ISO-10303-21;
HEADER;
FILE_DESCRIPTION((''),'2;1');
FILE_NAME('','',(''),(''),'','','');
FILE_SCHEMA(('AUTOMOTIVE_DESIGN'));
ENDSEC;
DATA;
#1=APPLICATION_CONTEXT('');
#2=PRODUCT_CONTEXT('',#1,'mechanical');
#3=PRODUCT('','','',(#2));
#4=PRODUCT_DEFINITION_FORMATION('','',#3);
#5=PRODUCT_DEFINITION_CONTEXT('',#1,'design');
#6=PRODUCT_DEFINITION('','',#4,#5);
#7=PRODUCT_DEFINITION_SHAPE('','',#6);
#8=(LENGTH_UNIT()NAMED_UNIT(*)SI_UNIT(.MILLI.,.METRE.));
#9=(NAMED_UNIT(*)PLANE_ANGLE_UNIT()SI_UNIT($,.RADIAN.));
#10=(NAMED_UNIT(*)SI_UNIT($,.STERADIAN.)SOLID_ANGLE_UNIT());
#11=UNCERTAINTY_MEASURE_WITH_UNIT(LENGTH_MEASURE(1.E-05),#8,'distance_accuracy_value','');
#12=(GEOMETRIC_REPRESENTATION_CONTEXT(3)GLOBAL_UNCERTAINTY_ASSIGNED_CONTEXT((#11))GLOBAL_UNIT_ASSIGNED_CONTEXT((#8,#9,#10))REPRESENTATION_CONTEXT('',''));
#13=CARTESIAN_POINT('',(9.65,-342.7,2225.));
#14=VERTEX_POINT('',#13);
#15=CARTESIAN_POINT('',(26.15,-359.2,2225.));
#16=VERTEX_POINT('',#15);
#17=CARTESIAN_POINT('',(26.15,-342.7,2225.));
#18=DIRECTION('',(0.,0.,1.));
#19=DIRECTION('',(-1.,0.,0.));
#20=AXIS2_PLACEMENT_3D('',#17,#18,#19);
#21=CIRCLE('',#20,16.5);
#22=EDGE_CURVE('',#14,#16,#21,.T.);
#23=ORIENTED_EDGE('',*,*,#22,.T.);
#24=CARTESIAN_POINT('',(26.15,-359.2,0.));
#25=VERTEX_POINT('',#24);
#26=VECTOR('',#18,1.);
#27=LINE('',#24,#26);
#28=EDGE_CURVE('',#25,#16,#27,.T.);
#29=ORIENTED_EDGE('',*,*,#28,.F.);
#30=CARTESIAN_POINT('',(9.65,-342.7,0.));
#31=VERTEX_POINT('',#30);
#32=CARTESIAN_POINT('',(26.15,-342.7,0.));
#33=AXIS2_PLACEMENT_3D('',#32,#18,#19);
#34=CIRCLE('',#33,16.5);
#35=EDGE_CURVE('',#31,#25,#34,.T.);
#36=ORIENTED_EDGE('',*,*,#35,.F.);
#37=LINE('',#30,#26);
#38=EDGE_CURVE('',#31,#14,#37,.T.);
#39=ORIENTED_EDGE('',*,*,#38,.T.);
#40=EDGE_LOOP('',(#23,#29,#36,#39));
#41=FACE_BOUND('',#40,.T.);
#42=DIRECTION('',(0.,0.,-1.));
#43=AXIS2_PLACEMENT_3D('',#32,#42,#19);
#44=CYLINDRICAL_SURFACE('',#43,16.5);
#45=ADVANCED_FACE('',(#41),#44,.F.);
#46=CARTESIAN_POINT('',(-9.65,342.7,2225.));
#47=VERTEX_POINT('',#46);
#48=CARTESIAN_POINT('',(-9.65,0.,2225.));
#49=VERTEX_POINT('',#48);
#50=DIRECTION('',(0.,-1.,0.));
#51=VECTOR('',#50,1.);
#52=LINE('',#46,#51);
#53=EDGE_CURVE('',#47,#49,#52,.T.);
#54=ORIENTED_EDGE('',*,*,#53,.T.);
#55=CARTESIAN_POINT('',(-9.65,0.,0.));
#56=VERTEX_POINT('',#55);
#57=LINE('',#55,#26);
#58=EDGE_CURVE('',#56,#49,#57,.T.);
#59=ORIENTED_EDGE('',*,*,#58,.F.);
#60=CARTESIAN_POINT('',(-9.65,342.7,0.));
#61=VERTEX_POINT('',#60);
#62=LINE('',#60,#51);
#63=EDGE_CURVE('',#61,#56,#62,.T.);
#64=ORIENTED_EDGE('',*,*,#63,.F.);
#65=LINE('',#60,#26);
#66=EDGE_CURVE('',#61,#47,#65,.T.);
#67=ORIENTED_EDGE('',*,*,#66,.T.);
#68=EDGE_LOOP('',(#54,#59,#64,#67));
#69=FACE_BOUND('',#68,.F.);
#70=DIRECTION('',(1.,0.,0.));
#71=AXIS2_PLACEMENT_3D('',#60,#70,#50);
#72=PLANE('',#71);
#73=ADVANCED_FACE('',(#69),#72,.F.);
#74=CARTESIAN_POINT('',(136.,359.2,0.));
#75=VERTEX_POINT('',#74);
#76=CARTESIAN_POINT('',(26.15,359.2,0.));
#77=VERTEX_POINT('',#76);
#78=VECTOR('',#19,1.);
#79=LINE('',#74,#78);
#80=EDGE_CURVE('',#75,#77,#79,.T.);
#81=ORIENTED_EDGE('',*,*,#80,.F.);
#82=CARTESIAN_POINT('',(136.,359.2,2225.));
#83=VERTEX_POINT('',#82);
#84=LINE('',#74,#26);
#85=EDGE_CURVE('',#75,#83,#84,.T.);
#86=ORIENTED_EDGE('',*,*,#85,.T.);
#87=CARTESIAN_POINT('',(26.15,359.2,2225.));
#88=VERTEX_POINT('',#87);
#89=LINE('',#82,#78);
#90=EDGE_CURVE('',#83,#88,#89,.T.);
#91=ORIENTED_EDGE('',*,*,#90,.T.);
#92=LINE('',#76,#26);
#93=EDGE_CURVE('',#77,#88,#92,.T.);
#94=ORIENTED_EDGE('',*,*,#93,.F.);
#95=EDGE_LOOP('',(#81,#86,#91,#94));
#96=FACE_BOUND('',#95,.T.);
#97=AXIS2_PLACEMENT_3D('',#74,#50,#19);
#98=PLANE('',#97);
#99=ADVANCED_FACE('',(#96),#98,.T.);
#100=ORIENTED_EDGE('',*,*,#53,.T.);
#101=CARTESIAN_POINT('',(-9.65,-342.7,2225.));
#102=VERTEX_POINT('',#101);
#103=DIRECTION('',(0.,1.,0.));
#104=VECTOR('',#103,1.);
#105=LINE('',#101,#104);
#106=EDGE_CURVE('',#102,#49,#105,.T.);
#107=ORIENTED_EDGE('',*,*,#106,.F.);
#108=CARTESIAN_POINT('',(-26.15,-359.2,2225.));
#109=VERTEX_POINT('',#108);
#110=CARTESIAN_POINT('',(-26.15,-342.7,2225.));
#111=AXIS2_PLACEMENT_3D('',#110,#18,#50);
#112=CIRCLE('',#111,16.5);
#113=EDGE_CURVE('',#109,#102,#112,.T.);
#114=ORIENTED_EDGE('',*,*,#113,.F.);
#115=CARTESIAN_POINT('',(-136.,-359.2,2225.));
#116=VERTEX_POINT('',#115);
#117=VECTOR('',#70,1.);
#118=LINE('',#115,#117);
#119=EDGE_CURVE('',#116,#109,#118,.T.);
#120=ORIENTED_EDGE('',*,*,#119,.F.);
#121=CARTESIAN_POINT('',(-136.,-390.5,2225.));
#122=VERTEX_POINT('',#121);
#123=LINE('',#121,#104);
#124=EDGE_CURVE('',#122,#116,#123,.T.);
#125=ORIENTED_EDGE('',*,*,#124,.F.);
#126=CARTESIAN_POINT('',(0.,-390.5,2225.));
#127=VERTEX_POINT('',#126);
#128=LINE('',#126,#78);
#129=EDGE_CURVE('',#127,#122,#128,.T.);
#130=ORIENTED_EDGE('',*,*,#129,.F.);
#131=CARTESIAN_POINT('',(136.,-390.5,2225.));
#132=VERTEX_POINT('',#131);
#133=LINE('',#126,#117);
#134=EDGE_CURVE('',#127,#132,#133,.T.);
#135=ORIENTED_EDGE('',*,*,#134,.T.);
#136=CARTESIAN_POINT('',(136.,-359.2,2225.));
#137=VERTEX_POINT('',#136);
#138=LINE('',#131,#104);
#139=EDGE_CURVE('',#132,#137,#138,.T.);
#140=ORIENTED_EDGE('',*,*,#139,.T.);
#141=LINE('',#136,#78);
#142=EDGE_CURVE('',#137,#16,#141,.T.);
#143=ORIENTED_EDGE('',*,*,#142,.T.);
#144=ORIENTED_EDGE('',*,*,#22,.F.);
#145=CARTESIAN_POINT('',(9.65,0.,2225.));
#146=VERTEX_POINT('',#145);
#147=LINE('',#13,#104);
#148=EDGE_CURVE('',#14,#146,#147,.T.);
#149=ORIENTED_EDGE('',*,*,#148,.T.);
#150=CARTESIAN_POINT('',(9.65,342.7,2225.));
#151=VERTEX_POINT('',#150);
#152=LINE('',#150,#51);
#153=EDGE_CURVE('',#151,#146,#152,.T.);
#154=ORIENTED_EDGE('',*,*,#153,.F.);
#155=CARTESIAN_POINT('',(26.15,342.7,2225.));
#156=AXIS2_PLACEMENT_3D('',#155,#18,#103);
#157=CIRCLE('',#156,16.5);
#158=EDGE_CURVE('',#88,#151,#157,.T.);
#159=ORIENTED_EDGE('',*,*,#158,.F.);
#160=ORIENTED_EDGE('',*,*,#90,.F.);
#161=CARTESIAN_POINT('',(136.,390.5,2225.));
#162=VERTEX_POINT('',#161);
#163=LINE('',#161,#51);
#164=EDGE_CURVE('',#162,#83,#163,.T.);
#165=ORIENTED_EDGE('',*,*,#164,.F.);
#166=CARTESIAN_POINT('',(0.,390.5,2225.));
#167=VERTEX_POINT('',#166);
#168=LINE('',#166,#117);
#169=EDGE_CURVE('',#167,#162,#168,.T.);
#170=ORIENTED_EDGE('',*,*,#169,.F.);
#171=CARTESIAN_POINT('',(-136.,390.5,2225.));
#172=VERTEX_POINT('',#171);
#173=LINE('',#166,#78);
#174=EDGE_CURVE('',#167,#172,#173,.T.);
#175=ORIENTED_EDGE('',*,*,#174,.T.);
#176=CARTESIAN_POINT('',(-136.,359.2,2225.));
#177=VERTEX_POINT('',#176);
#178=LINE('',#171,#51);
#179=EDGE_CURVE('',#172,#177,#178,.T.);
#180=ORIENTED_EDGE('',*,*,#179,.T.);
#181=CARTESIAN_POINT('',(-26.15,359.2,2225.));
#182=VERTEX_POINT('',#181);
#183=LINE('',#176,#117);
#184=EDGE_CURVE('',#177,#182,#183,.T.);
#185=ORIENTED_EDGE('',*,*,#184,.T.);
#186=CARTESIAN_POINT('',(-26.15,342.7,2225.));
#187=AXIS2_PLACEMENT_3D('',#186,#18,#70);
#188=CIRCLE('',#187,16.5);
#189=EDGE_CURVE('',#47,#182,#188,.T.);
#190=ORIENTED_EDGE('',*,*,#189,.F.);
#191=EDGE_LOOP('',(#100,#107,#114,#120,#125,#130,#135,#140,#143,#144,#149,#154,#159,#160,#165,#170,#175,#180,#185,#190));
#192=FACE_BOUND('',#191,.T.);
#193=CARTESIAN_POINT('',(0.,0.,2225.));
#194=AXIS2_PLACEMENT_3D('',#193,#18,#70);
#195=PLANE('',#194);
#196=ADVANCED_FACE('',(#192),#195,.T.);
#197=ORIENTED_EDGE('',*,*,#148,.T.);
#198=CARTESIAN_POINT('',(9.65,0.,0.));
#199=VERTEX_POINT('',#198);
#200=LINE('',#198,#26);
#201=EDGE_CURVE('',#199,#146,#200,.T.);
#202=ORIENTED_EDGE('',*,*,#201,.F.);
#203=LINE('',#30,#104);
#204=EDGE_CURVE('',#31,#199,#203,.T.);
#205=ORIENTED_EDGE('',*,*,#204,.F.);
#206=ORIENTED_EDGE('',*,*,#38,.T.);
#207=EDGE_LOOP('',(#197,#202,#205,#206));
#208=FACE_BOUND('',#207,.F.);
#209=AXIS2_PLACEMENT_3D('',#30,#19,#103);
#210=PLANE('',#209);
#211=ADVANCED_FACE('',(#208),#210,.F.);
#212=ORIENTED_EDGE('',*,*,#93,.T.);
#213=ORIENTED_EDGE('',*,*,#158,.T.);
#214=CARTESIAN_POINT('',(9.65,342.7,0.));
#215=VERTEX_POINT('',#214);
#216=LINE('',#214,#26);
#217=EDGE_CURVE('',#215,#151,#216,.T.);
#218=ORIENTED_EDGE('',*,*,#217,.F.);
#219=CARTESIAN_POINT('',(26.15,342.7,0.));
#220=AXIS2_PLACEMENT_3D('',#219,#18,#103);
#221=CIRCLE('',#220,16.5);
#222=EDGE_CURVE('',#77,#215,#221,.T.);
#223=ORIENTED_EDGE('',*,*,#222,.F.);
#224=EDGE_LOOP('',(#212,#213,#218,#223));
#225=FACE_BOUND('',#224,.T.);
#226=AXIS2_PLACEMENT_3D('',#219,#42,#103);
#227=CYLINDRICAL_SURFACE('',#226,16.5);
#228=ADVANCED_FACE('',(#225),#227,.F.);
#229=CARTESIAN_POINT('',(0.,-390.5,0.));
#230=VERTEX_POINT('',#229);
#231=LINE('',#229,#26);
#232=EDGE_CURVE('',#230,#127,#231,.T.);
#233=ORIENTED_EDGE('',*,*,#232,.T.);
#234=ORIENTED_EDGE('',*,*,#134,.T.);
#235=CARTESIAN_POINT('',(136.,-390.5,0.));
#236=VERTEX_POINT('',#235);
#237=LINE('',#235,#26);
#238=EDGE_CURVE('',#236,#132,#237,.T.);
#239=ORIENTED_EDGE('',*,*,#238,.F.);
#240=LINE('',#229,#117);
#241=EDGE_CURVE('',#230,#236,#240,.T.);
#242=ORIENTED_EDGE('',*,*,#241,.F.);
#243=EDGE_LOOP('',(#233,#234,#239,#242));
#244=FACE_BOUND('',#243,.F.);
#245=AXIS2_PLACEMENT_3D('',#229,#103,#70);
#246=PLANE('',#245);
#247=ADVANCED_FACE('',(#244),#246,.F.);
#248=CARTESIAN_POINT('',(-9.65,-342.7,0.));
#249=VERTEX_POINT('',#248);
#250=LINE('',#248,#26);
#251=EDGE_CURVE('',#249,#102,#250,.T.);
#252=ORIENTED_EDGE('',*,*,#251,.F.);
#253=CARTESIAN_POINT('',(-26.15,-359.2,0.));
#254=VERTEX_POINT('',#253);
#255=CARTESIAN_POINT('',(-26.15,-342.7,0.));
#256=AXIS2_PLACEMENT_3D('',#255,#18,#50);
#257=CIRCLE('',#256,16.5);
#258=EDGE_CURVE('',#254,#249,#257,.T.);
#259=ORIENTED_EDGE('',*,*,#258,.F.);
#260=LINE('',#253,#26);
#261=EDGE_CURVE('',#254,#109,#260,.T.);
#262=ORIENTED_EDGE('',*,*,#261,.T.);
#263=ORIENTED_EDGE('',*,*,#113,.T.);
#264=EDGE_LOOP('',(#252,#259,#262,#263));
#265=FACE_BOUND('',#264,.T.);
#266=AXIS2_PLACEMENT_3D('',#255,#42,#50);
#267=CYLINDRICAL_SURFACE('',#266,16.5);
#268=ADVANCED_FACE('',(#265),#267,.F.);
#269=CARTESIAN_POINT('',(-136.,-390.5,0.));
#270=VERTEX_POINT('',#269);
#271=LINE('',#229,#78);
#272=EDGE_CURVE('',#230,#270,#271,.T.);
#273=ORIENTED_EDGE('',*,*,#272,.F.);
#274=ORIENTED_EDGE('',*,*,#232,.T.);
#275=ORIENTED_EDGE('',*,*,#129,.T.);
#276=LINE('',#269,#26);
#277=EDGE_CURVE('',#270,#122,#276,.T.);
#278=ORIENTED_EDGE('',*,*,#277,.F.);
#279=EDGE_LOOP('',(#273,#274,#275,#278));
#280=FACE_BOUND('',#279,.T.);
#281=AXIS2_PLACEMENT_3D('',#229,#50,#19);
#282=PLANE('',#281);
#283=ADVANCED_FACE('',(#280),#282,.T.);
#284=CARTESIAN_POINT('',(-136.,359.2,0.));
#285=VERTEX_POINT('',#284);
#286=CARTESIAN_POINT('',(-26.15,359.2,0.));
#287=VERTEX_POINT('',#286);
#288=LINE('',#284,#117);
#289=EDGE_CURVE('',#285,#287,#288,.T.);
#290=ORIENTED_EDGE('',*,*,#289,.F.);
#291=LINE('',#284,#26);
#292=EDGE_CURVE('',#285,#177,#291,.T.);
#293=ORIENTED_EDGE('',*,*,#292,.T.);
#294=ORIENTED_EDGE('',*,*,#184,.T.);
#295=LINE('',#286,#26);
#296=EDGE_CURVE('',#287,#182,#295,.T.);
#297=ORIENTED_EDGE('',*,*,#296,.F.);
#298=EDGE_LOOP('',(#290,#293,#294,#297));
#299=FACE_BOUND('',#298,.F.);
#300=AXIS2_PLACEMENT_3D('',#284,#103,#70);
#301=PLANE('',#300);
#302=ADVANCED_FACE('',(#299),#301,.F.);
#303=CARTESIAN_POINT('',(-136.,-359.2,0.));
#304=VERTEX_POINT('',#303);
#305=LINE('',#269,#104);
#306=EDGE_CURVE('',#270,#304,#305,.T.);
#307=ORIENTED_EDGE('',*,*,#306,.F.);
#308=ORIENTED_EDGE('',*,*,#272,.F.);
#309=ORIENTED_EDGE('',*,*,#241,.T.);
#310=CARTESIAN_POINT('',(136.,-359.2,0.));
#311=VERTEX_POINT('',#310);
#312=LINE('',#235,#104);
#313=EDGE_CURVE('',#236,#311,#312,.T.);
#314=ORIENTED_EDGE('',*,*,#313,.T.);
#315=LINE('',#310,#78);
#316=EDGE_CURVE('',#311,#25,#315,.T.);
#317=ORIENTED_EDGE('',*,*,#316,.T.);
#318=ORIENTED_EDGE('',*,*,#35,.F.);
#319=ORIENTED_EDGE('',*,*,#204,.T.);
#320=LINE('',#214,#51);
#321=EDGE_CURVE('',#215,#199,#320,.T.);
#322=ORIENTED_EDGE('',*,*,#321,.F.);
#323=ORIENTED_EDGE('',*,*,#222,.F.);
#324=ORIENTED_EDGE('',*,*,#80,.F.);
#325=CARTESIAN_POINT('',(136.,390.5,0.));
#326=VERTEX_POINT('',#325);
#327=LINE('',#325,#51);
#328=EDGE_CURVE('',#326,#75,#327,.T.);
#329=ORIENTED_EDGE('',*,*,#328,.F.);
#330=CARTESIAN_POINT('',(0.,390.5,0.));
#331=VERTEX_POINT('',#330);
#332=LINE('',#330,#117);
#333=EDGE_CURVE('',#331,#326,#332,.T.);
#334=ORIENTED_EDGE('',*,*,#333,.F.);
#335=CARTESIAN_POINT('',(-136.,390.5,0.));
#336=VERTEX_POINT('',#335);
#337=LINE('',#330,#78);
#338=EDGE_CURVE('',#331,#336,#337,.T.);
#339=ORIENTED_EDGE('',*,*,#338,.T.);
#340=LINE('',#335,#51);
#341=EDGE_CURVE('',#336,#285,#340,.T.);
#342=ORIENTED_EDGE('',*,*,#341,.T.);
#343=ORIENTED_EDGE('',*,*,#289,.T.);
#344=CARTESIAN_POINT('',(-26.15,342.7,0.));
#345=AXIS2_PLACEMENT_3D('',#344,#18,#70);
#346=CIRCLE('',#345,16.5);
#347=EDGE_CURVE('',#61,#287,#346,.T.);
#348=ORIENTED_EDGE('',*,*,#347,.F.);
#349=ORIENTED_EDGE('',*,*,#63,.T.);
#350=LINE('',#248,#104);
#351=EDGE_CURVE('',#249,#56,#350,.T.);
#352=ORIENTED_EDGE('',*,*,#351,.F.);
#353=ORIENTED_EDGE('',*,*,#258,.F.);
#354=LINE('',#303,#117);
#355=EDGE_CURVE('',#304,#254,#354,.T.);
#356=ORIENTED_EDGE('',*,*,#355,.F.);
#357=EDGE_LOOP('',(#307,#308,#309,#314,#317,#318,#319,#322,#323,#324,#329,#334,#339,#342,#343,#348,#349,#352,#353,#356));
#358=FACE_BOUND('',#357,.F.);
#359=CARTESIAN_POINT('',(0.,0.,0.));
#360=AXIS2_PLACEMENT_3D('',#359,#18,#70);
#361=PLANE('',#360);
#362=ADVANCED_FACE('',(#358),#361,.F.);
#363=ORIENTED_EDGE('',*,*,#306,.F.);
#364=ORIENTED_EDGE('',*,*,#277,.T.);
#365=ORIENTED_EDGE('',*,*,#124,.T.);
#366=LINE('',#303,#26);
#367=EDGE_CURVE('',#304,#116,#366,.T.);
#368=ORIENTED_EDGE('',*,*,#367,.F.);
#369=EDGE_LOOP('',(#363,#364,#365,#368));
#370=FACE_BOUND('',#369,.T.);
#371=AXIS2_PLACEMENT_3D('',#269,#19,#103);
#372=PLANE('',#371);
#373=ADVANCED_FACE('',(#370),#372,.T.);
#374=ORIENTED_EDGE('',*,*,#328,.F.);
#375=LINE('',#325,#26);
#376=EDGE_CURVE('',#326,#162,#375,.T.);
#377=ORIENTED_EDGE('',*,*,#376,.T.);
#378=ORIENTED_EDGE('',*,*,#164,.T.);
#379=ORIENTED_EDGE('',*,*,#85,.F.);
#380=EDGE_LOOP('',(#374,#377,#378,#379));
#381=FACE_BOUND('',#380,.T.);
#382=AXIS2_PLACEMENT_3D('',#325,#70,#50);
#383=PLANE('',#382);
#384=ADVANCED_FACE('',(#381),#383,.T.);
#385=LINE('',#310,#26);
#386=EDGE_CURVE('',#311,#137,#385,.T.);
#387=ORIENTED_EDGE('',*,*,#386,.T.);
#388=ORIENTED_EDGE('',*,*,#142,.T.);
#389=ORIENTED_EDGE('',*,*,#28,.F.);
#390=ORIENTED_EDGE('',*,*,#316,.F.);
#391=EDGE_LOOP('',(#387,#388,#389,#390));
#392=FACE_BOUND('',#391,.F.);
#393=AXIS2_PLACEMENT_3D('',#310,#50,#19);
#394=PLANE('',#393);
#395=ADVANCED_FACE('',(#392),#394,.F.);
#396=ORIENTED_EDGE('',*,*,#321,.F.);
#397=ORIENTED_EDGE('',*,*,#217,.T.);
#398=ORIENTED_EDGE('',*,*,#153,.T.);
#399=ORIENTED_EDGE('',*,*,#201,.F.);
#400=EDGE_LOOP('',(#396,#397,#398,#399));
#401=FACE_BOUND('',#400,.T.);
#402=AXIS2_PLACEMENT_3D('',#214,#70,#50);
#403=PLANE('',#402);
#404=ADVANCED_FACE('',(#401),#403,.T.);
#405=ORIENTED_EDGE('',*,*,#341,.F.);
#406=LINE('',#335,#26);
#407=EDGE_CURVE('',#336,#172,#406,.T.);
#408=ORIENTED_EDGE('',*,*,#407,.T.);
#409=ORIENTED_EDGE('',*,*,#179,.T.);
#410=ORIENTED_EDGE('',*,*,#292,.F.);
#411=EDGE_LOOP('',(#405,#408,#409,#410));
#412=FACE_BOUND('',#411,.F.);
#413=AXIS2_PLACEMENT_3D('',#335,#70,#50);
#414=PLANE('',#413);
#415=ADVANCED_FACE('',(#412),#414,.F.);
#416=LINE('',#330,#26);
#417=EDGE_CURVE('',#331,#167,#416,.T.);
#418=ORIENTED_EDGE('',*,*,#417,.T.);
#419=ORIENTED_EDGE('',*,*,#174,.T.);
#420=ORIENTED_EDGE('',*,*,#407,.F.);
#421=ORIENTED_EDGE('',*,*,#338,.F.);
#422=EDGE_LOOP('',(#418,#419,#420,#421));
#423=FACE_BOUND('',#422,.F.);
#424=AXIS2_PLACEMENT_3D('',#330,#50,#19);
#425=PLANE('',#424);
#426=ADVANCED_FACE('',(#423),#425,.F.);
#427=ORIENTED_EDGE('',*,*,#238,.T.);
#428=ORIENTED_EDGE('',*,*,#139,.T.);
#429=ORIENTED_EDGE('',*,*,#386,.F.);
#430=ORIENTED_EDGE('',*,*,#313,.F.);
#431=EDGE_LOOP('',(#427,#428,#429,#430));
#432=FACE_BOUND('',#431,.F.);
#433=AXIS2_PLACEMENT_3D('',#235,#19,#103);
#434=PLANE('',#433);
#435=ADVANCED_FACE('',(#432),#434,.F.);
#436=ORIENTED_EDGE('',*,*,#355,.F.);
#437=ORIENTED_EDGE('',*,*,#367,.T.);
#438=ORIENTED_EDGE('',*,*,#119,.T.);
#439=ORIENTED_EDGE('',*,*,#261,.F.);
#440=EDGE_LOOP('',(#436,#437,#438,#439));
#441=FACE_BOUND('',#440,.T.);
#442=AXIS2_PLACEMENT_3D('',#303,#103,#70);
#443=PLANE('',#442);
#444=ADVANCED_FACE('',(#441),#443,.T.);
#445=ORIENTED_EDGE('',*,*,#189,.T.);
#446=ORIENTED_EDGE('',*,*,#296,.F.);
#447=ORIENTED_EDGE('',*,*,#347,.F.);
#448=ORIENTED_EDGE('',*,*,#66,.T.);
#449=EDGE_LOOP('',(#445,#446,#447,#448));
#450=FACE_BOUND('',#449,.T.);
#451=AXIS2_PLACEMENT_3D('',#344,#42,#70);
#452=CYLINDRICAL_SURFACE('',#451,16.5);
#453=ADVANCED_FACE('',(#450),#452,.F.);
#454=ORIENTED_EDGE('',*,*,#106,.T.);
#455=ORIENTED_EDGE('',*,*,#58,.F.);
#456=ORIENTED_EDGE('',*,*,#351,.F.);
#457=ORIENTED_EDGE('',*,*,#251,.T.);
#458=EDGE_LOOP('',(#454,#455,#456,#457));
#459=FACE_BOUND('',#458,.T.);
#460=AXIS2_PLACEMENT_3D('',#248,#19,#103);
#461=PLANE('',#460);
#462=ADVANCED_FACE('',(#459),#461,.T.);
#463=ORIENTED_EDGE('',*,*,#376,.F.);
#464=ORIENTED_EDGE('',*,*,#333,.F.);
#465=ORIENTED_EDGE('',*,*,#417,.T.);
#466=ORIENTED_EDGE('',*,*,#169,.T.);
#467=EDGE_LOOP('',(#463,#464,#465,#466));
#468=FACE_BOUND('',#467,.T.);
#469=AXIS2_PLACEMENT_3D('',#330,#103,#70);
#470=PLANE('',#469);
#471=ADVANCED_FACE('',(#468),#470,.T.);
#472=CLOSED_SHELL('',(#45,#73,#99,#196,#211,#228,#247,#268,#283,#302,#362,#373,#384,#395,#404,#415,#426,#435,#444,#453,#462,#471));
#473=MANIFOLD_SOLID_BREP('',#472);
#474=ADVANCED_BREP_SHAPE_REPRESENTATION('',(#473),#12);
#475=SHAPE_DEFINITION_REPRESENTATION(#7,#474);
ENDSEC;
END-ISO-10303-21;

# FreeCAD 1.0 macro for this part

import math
import FreeCAD as App
import Part
import Sketcher
from FreeCAD import Vector

doc = App.newDocument("Part")
params = doc.addObject("Spreadsheet::Sheet", "Params")
for row, (alias, value) in enumerate([
    ("sketch1_radius", "16.5 mm"),
    ("sketch1_height", "31.3 mm"),
    ("pad1_length", "2225 mm"),
], start=1):
    params.set(f"A{row}", alias)
    params.set(f"B{row}", "=" + value)
    params.setAlias(f"B{row}", alias)

body = doc.addObject("PartDesign::Body", "Body")

sketch1 = body.newObject("Sketcher::SketchObject", "Sketch")
sketch1.AttachmentSupport = (doc.getObject("XY_Plane"), [""])
sketch1.MapMode = "FlatFace"
sketch1.addGeometry([
    Part.LineSegment(Vector(-136, -359.2, 0), Vector(-136, -390.5, 0)),
    Part.LineSegment(Vector(-136, -390.5, 0), Vector(136, -390.5, 0)),
    Part.LineSegment(Vector(136, -390.5, 0), Vector(136, -359.2, 0)),
    Part.LineSegment(Vector(136, -359.2, 0), Vector(26.15, -359.2, 0)),
    Part.ArcOfCircle(Part.Circle(Vector(26.15, -342.7, 0), Vector(0, 0, 1), 16.5), math.radians(180), math.radians(270)),
    Part.LineSegment(Vector(9.65, -342.7, 0), Vector(9.65, 342.7, 0)),
    Part.ArcOfCircle(Part.Circle(Vector(26.15, 342.7, 0), Vector(0, 0, 1), 16.5), math.radians(90), math.radians(180)),
    Part.LineSegment(Vector(26.15, 359.2, 0), Vector(136, 359.2, 0)),
    Part.LineSegment(Vector(136, 359.2, 0), Vector(136, 390.5, 0)),
    Part.LineSegment(Vector(136, 390.5, 0), Vector(-136, 390.5, 0)),
    Part.LineSegment(Vector(-136, 390.5, 0), Vector(-136, 359.2, 0)),
    Part.LineSegment(Vector(-136, 359.2, 0), Vector(-26.15, 359.2, 0)),
    Part.ArcOfCircle(Part.Circle(Vector(-26.15, 342.7, 0), Vector(0, 0, 1), 16.5), math.radians(0), math.radians(90)),
    Part.LineSegment(Vector(-9.65, 342.7, 0), Vector(-9.65, -342.7, 0)),
    Part.ArcOfCircle(Part.Circle(Vector(-26.15, -342.7, 0), Vector(0, 0, 1), 16.5), math.radians(-90), math.radians(0)),
    Part.LineSegment(Vector(-26.15, -359.2, 0), Vector(-136, -359.2, 0)),
], False)
sketch1.addConstraint([
    Sketcher.Constraint("Coincident", 0, 2, 1, 1),
    Sketcher.Constraint("Coincident", 1, 2, 2, 1),
    Sketcher.Constraint("Coincident", 2, 2, 3, 1),
    Sketcher.Constraint("Tangent", 3, 2, 4, 2),
    Sketcher.Constraint("Tangent", 4, 1, 5, 1),
    Sketcher.Constraint("Tangent", 5, 2, 6, 2),
    Sketcher.Constraint("Tangent", 6, 1, 7, 1),
    Sketcher.Constraint("Coincident", 7, 2, 8, 1),
    Sketcher.Constraint("Coincident", 8, 2, 9, 1),
    Sketcher.Constraint("Coincident", 9, 2, 10, 1),
    Sketcher.Constraint("Coincident", 10, 2, 11, 1),
    Sketcher.Constraint("Tangent", 11, 2, 12, 2),
    Sketcher.Constraint("Tangent", 12, 1, 13, 1),
    Sketcher.Constraint("Tangent", 13, 2, 14, 2),
    Sketcher.Constraint("Tangent", 14, 1, 15, 1),
    Sketcher.Constraint("Coincident", 15, 2, 0, 1),
    Sketcher.Constraint("Vertical", 0),
    Sketcher.Constraint("Horizontal", 1),
    Sketcher.Constraint("Vertical", 2),
    Sketcher.Constraint("Horizontal", 3),
    Sketcher.Constraint("Vertical", 5),
    Sketcher.Constraint("Horizontal", 7),
    Sketcher.Constraint("Vertical", 8),
    Sketcher.Constraint("Horizontal", 9),
    Sketcher.Constraint("Vertical", 10),
    Sketcher.Constraint("Horizontal", 11),
    Sketcher.Constraint("Vertical", 13),
    Sketcher.Constraint("Horizontal", 15),
    Sketcher.Constraint("Equal", 4, 6),
    Sketcher.Constraint("Equal", 6, 12),
    Sketcher.Constraint("Equal", 12, 14),
    Sketcher.Constraint("Symmetric", 4, 3, 12, 3, -1, 1),
    Sketcher.Constraint("Symmetric", 0, 2, 8, 2, -1, 1),
    Sketcher.Constraint("Symmetric", 7, 2, 10, 2, -2),
    Sketcher.Constraint("Symmetric", 2, 2, 15, 2, -2),
    Sketcher.Constraint("Radius", 4, 16.5),
    Sketcher.Constraint("DistanceY", 0, 2, 0, 1, 31.3),
    Sketcher.Constraint("DistanceX", 0, 2, -1, 1, 136.0),
    Sketcher.Constraint("DistanceY", 0, 2, -1, 1, 390.5),
    Sketcher.Constraint("DistanceX", -1, 1, 4, 1, 9.65),
])
sketch1.setExpression("Constraints[35]", "Params.sketch1_radius")
sketch1.setExpression("Constraints[36]", "Params.sketch1_height")
pad1 = body.newObject("PartDesign::Pad", "Pad")
pad1.Profile = sketch1
pad1.setExpression("Length", "Params.pad1_length")

doc.recompute()
